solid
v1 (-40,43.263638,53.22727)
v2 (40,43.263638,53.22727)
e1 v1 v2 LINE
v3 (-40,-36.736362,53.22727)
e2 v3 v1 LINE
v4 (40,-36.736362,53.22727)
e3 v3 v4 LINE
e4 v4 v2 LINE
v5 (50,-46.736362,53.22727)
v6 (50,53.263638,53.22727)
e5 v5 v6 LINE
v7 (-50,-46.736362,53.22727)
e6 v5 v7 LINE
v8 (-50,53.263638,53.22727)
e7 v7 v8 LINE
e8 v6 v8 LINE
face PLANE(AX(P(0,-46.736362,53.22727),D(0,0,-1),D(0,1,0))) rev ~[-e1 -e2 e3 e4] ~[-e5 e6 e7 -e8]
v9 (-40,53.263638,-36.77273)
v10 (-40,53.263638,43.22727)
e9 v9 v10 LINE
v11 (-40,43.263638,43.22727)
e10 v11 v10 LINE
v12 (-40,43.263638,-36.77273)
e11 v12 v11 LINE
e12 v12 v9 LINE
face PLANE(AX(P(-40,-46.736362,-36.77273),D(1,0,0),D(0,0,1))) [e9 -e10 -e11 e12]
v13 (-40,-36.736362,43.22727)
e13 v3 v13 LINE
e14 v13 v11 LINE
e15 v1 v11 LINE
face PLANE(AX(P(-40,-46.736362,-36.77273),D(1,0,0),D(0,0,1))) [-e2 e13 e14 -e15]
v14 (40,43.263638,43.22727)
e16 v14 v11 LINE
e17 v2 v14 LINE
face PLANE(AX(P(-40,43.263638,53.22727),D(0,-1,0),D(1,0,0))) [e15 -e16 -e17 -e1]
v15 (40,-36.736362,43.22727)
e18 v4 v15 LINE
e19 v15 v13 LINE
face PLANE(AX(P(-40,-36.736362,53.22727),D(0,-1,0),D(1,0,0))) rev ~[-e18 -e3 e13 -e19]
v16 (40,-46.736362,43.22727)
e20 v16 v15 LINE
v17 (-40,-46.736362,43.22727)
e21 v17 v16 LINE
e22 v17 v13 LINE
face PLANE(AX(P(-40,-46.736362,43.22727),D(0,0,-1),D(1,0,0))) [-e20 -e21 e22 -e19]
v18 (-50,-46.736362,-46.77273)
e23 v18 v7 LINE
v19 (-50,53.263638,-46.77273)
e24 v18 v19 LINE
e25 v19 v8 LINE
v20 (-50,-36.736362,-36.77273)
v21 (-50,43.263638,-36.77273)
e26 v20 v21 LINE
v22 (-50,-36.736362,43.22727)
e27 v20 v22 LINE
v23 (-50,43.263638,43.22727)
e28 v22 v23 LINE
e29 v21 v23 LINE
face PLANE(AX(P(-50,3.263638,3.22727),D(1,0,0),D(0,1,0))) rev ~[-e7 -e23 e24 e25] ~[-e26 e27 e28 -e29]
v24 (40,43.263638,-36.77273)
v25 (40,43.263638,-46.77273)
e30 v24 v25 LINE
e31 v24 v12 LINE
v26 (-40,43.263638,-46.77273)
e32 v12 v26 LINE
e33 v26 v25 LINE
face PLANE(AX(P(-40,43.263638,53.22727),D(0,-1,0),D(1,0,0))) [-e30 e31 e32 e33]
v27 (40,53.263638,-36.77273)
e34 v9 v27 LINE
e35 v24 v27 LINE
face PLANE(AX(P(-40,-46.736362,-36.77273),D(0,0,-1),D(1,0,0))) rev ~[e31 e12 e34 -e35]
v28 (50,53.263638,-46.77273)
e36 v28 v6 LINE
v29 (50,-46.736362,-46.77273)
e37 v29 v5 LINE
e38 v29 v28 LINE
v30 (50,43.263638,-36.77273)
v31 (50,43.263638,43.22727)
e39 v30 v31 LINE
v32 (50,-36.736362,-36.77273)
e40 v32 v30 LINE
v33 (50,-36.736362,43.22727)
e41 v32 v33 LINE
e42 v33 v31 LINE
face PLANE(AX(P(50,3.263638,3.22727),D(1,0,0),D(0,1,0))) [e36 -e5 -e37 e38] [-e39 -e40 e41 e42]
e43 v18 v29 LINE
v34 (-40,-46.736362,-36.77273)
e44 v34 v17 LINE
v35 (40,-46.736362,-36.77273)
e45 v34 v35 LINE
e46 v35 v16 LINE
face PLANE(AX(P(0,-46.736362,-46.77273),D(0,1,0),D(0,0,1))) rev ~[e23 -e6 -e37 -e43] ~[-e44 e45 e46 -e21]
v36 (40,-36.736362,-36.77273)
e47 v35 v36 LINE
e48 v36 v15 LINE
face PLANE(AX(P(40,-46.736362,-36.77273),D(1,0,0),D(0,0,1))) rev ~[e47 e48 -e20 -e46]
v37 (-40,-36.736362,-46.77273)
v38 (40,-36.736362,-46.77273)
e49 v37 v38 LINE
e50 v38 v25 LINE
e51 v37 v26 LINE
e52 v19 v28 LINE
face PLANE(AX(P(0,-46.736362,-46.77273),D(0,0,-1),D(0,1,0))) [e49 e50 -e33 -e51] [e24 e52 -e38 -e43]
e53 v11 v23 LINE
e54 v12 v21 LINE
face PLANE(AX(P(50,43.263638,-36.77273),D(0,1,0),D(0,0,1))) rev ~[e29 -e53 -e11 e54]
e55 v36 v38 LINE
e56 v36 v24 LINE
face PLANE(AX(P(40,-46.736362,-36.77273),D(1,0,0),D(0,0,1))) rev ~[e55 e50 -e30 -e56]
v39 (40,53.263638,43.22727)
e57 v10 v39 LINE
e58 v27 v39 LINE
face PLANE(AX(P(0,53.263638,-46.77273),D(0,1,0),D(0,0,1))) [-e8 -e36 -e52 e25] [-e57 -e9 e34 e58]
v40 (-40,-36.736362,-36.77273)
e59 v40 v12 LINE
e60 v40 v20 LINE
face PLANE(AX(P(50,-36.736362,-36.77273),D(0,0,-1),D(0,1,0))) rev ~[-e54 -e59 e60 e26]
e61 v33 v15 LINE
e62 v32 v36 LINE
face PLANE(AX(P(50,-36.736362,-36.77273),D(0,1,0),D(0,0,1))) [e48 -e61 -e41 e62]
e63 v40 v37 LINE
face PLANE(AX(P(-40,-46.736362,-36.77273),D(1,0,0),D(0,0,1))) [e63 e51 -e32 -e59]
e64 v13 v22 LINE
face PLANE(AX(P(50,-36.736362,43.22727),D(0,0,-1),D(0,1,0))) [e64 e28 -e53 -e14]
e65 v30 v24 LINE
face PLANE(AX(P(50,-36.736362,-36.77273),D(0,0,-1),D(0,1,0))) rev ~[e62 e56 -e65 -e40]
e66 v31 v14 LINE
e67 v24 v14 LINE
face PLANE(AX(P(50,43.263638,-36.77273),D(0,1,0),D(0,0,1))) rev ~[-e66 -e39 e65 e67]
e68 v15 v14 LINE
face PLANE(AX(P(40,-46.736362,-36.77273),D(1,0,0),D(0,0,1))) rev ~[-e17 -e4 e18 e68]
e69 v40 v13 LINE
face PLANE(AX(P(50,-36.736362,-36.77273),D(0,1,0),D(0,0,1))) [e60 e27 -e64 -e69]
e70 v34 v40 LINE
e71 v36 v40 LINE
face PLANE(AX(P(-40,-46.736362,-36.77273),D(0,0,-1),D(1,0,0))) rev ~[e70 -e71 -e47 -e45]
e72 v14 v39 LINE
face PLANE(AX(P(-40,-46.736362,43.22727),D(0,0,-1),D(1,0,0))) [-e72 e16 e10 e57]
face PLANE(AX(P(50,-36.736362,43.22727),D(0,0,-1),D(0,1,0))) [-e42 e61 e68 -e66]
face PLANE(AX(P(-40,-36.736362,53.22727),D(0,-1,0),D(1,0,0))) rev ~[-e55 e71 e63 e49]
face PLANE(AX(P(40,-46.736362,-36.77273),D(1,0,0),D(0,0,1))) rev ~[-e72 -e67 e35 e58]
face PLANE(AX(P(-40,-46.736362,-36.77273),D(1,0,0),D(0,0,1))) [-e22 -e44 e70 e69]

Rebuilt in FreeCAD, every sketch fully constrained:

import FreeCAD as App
import Part
import Sketcher

V = App.Vector
Q = App.Units.Quantity

doc = App.newDocument("Part")
body = doc.addObject("PartDesign::Body", "Body")

# Sketch on YZ plane
sketch1 = body.newObject("Sketcher::SketchObject", "Sketch")
sketch1.AttachmentSupport = (doc.getObject("YZ_Plane"), [""])
sketch1.MapMode = "FlatFace"
sketch1.addGeometry([
    Part.LineSegment(V(-47, 53, 0), V(-47, -47, 0)),
    Part.LineSegment(V(-47, -47, 0), V(53, -47, 0)),
    Part.LineSegment(V(53, -47, 0), V(53, 53, 0)),
    Part.LineSegment(V(53, 53, 0), V(-47, 53, 0)),
], False)
sketch1.addConstraint([
    Sketcher.Constraint("Coincident", 0, 2, 1, 1),
    Sketcher.Constraint("Coincident", 1, 2, 2, 1),
    Sketcher.Constraint("Coincident", 2, 2, 3, 1),
    Sketcher.Constraint("Coincident", 3, 2, 0, 1),
    Sketcher.Constraint("Vertical", 0),
    Sketcher.Constraint("Horizontal", 1),
    Sketcher.Constraint("Vertical", 2),
    Sketcher.Constraint("Horizontal", 3),
    Sketcher.Constraint("Equal", 3, 0),
    Sketcher.Constraint("DistanceX", 1, 1, 1, 2, Q("100 mm")),
    Sketcher.Constraint("DistanceY", 0, 2, -1, 1, Q("46.77273 mm")),
    Sketcher.Constraint("DistanceX", 0, 2, -1, 1, Q("46.736362 mm")),
])
pad1 = body.newObject("PartDesign::Pad", "Pad")
pad1.Profile = sketch1
pad1.Length = 100
pad1.Midplane = True

# Sketch on XZ plane
sketch2 = body.newObject("Sketcher::SketchObject", "Sketch001")
sketch2.AttachmentSupport = (doc.getObject("XZ_Plane"), [""])
sketch2.MapMode = "FlatFace"
sketch2.AttachmentOffset = App.Placement(V(0, 0, 46.736362), App.Rotation())
sketch2.addGeometry([
    Part.LineSegment(V(-40, 43, 0), V(-40, -37, 0)),
    Part.LineSegment(V(-40, -37, 0), V(40, -37, 0)),
    Part.LineSegment(V(40, -37, 0), V(40, 43, 0)),
    Part.LineSegment(V(40, 43, 0), V(-40, 43, 0)),
], False)
sketch2.addConstraint([
    Sketcher.Constraint("Coincident", 0, 2, 1, 1),
    Sketcher.Constraint("Coincident", 1, 2, 2, 1),
    Sketcher.Constraint("Coincident", 2, 2, 3, 1),
    Sketcher.Constraint("Coincident", 3, 2, 0, 1),
    Sketcher.Constraint("Vertical", 0),
    Sketcher.Constraint("Horizontal", 1),
    Sketcher.Constraint("Vertical", 2),
    Sketcher.Constraint("Horizontal", 3),
    Sketcher.Constraint("Equal", 3, 0),
    Sketcher.Constraint("DistanceX", 1, 1, 1, 2, Q("80 mm")),
    Sketcher.Constraint("DistanceX", 0, 2, -1, 1, Q("40 mm")),
    Sketcher.Constraint("DistanceY", 0, 2, -1, 1, Q("36.77273 mm")),
])
pocket1 = body.newObject("PartDesign::Pocket", "Pocket")
pocket1.Profile = sketch2
pocket1.Length = 100

# Sketch on XY plane
sketch3 = body.newObject("Sketcher::SketchObject", "Sketch002")
sketch3.AttachmentSupport = (doc.getObject("XY_Plane"), [""])
sketch3.MapMode = "FlatFace"
sketch3.AttachmentOffset = App.Placement(V(0, 0, 53.22727), App.Rotation())
sketch3.addGeometry([
    Part.LineSegment(V(-40, 43, 0), V(-40, -37, 0)),
    Part.LineSegment(V(-40, -37, 0), V(40, -37, 0)),
    Part.LineSegment(V(40, -37, 0), V(40, 43, 0)),
    Part.LineSegment(V(40, 43, 0), V(-40, 43, 0)),
], False)
sketch3.addConstraint([
    Sketcher.Constraint("Coincident", 0, 2, 1, 1),
    Sketcher.Constraint("Coincident", 1, 2, 2, 1),
    Sketcher.Constraint("Coincident", 2, 2, 3, 1),
    Sketcher.Constraint("Coincident", 3, 2, 0, 1),
    Sketcher.Constraint("Vertical", 0),
    Sketcher.Constraint("Horizontal", 1),
    Sketcher.Constraint("Vertical", 2),
    Sketcher.Constraint("Horizontal", 3),
    Sketcher.Constraint("Equal", 3, 0),
    Sketcher.Constraint("DistanceX", 1, 1, 1, 2, Q("80 mm")),
    Sketcher.Constraint("DistanceX", 0, 2, -1, 1, Q("40 mm")),
    Sketcher.Constraint("DistanceY", 0, 2, -1, 1, Q("36.736362 mm")),
])
pocket2 = body.newObject("PartDesign::Pocket", "Pocket001")
pocket2.Profile = sketch3
pocket2.Length = 100

# Sketch on YZ plane
sketch4 = body.newObject("Sketcher::SketchObject", "Sketch003")
sketch4.AttachmentSupport = (doc.getObject("YZ_Plane"), [""])
sketch4.MapMode = "FlatFace"
sketch4.AttachmentOffset = App.Placement(V(0, 0, 50), App.Rotation())
sketch4.addGeometry([
    Part.LineSegment(V(-37, 43, 0), V(-37, -37, 0)),
    Part.LineSegment(V(-37, -37, 0), V(43, -37, 0)),
    Part.LineSegment(V(43, -37, 0), V(43, 43, 0)),
    Part.LineSegment(V(43, 43, 0), V(-37, 43, 0)),
], False)
sketch4.addConstraint([
    Sketcher.Constraint("Coincident", 0, 2, 1, 1),
    Sketcher.Constraint("Coincident", 1, 2, 2, 1),
    Sketcher.Constraint("Coincident", 2, 2, 3, 1),
    Sketcher.Constraint("Coincident", 3, 2, 0, 1),
    Sketcher.Constraint("Vertical", 0),
    Sketcher.Constraint("Horizontal", 1),
    Sketcher.Constraint("Vertical", 2),
    Sketcher.Constraint("Horizontal", 3),
    Sketcher.Constraint("Equal", 3, 0),
    Sketcher.Constraint("DistanceX", 1, 1, 1, 2, Q("80 mm")),
    Sketcher.Constraint("DistanceY", 0, 2, -1, 1, Q("36.77273 mm")),
    Sketcher.Constraint("DistanceX", 0, 2, -1, 1, Q("36.736362 mm")),
])
pocket3 = body.newObject("PartDesign::Pocket", "Pocket002")
pocket3.Profile = sketch4
pocket3.Length = 100

doc.recompute()
